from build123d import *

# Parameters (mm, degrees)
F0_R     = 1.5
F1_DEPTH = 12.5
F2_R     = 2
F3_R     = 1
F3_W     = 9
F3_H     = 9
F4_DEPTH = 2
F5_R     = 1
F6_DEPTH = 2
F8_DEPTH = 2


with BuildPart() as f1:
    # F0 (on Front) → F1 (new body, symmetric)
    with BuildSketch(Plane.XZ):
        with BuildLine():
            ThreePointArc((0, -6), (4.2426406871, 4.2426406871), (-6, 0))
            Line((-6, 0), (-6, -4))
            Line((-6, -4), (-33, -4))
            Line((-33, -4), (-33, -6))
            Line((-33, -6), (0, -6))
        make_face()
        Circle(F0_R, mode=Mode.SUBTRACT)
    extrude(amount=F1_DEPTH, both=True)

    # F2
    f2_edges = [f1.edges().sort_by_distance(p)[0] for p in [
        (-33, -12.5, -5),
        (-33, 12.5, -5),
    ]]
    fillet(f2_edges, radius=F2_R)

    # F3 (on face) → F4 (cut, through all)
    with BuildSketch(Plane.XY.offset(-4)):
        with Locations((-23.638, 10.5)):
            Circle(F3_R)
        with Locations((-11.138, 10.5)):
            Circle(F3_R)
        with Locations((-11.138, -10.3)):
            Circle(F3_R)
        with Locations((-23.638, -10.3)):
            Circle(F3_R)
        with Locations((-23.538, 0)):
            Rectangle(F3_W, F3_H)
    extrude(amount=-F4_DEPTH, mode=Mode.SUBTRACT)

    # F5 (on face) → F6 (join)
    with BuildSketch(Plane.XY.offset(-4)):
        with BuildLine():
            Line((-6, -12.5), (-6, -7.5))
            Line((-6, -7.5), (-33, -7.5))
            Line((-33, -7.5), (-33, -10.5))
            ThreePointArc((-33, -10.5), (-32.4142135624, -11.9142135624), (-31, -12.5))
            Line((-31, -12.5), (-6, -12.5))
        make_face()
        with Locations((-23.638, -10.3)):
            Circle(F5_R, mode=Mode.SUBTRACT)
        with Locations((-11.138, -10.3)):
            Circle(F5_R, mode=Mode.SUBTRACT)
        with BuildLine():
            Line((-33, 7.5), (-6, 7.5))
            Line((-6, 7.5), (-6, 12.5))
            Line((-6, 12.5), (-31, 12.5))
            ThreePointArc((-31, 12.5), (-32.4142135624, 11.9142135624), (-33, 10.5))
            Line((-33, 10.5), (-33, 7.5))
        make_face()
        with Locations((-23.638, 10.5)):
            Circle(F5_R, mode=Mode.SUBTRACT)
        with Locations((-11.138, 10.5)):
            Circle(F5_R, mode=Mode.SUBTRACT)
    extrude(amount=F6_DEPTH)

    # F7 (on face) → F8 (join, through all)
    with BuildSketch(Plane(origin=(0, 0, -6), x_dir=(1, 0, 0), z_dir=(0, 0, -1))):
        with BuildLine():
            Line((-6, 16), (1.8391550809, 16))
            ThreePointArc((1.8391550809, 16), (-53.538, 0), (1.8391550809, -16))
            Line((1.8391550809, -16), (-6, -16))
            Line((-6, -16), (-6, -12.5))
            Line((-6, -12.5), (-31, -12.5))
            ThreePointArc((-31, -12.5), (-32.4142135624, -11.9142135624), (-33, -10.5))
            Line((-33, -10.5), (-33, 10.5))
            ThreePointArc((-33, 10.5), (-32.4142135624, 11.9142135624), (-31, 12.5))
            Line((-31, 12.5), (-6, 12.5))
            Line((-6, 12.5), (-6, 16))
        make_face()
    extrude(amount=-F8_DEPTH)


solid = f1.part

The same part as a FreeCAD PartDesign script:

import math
import FreeCAD as App
import Part
import Sketcher
from FreeCAD import Vector
Q = App.Units.Quantity


def edges_at(feature, points):
    """Names of the edges that pass closest to the given points."""
    edges = feature.Shape.Edges
    near = lambda p: min(range(len(edges)), key=lambda i: edges[i].distToShape(Part.Vertex(*p))[0])
    return sorted({f"Edge{near(p) + 1}" for p in points})


def add_polygon(sketch, points):
    """Adds a closed chain of lines whose ends are joined by coincident constraints."""
    first, n = sketch.GeometryCount, len(points)
    for a, b in zip(points, points[1:] + points[:1]):
        sketch.addGeometry(Part.LineSegment(App.Vector(*a, 0), App.Vector(*b, 0)), False)
    for i in range(n):
        sketch.addConstraint(Sketcher.Constraint("Coincident", first + i, 2, first + (i + 1) % n, 1))

doc = App.newDocument("Part")
body = doc.addObject("PartDesign::Body", "Body")

# Sketch on XZ plane
sketch1 = doc.addObject("Sketcher::SketchObject", "Sketch")
body.addObject(sketch1)
sketch1.AttachmentSupport = (doc.XZ_Plane, [""])
sketch1.MapMode = "FlatFace"
sketch1.addGeometry(Part.ArcOfCircle(Part.Circle(Vector(0, 0, 0), Vector(0, 0, 1), 6), math.radians(-90), math.radians(180)), False)
sketch1.addGeometry(Part.LineSegment(Vector(-6, 0, 0), Vector(-6, -4, 0)), False)
sketch1.addGeometry(Part.LineSegment(Vector(-6, -4, 0), Vector(-33, -4, 0)), False)
sketch1.addGeometry(Part.LineSegment(Vector(-33, -4, 0), Vector(-33, -6, 0)), False)
sketch1.addGeometry(Part.LineSegment(Vector(-33, -6, 0), Vector(0, -6, 0)), False)
sketch1.addGeometry(Part.Circle(Vector(0, 0, 0), Vector(0, 0, 1), 1.5), False)
sketch1.addConstraint(Sketcher.Constraint("Tangent", 0, 2, 1, 1))
sketch1.addConstraint(Sketcher.Constraint("Coincident", 1, 2, 2, 1))
sketch1.addConstraint(Sketcher.Constraint("Coincident", 2, 2, 3, 1))
sketch1.addConstraint(Sketcher.Constraint("Coincident", 3, 2, 4, 1))
sketch1.addConstraint(Sketcher.Constraint("Tangent", 4, 2, 0, 1))
sketch1.addConstraint(Sketcher.Constraint("Vertical", 1))
sketch1.addConstraint(Sketcher.Constraint("Horizontal", 2))
sketch1.addConstraint(Sketcher.Constraint("Vertical", 3))
sketch1.addConstraint(Sketcher.Constraint("Horizontal", 4))
sketch1.addConstraint(Sketcher.Constraint("Coincident", 0, 3, -1, 1))
sketch1.addConstraint(Sketcher.Constraint("Coincident", 5, 3, -1, 1))
sketch1.addConstraint(Sketcher.Constraint("Diameter", 5, Q("3 mm")))
sketch1.addConstraint(Sketcher.Constraint("Radius", 0, Q("6 mm")))
sketch1.addConstraint(Sketcher.Constraint("DistanceX", 2, 2, 2, 1, Q("27 mm")))
sketch1.addConstraint(Sketcher.Constraint("DistanceY", 1, 2, 1, 1, Q("4 mm")))
pad1 = doc.addObject("PartDesign::Pad", "Pad")
body.addObject(pad1)
pad1.Profile = sketch1
pad1.Length = 25
pad1.Midplane = True
doc.recompute()

fillet = doc.addObject("PartDesign::Fillet", "Fillet")
body.addObject(fillet)
fillet.Base = (pad1, edges_at(pad1, [(-33, -12.5, -5), (-33, 12.5, -5)]))
fillet.Radius = 2

# Sketch on XY plane
sketch2 = doc.addObject("Sketcher::SketchObject", "Sketch001")
body.addObject(sketch2)
sketch2.AttachmentSupport = (doc.XY_Plane, [""])
sketch2.MapMode = "FlatFace"
sketch2.AttachmentOffset = App.Placement(Vector(0, 0, -4), App.Rotation())
sketch2.addGeometry(Part.Circle(Vector(-23.638, 10.5, 0), Vector(0, 0, 1), 1), False)  # 0
sketch2.addGeometry(Part.Circle(Vector(-11.138, 10.5, 0), Vector(0, 0, 1), 1), False)  # 1
sketch2.addGeometry(Part.Circle(Vector(-11.138, -10.3, 0), Vector(0, 0, 1), 1), False)  # 2
sketch2.addGeometry(Part.Circle(Vector(-23.638, -10.3, 0), Vector(0, 0, 1), 1), False)  # 3
add_polygon(sketch2, [(-28.038, 4.5), (-28.038, -4.5), (-19.038, -4.5), (-19.038, 4.5)])  # lines 4-7
sketch2.addConstraint(Sketcher.Constraint("Vertical", 4))
sketch2.addConstraint(Sketcher.Constraint("Horizontal", 5))
sketch2.addConstraint(Sketcher.Constraint("Vertical", 6))
sketch2.addConstraint(Sketcher.Constraint("Horizontal", 7))
sketch2.addConstraint(Sketcher.Constraint("Equal", 0, 1))
sketch2.addConstraint(Sketcher.Constraint("Equal", 1, 2))
sketch2.addConstraint(Sketcher.Constraint("Equal", 2, 3))
sketch2.addConstraint(Sketcher.Constraint("Horizontal", 0, 3, 1, 3))
sketch2.addConstraint(Sketcher.Constraint("Horizontal", 2, 3, 3, 3))
sketch2.addConstraint(Sketcher.Constraint("Vertical", 1, 3, 2, 3))
sketch2.addConstraint(Sketcher.Constraint("Vertical", 0, 3, 3, 3))
sketch2.addConstraint(Sketcher.Constraint("Equal", 7, 4))
sketch2.addConstraint(Sketcher.Constraint("Diameter", 0, Q("2 mm")))
sketch2.addConstraint(Sketcher.Constraint("DistanceX", 5, 1, 5, 2, Q("9 mm")))
sketch2.addConstraint(Sketcher.Constraint("DistanceY", 4, 2, 0, 3, Q("15 mm")))
sketch2.addConstraint(Sketcher.Constraint("DistanceY", -1, 1, 0, 3, Q("10.5 mm")))
sketch2.addConstraint(Sketcher.Constraint("DistanceY", 2, 3, -1, 1, Q("10.3 mm")))
sketch2.addConstraint(Sketcher.Constraint("DistanceX", 0, 3, 1, 3, Q("12.5 mm")))
sketch2.addConstraint(Sketcher.Constraint("DistanceX", 4, 2, 3, 3, Q("4.4 mm")))
sketch2.addConstraint(Sketcher.Constraint("DistanceX", 0, 3, -1, 1, Q("23.638 mm")))
pocket1 = doc.addObject("PartDesign::Pocket", "Pocket")
body.addObject(pocket1)
pocket1.Profile = sketch2
pocket1.Type = "ThroughAll"

# Sketch on XY plane
sketch3 = doc.addObject("Sketcher::SketchObject", "Sketch002")
body.addObject(sketch3)
sketch3.AttachmentSupport = (doc.XY_Plane, [""])
sketch3.MapMode = "FlatFace"
sketch3.AttachmentOffset = App.Placement(Vector(0, 0, -4), App.Rotation())
sketch3.addGeometry(Part.LineSegment(Vector(-6, -12.5, 0), Vector(-6, -7.5, 0)), False)
sketch3.addGeometry(Part.LineSegment(Vector(-6, -7.5, 0), Vector(-33, -7.5, 0)), False)
sketch3.addGeometry(Part.LineSegment(Vector(-33, -7.5, 0), Vector(-33, -10.5, 0)), False)
sketch3.addGeometry(Part.ArcOfCircle(Part.Circle(Vector(-31, -10.5, 0), Vector(0, 0, 1), 2), math.radians(180), math.radians(270)), False)
sketch3.addGeometry(Part.LineSegment(Vector(-31, -12.5, 0), Vector(-6, -12.5, 0)), False)
sketch3.addGeometry(Part.Circle(Vector(-23.638, -10.3, 0), Vector(0, 0, 1), 1), False)
sketch3.addGeometry(Part.Circle(Vector(-11.138, -10.3, 0), Vector(0, 0, 1), 1), False)
sketch3.addGeometry(Part.LineSegment(Vector(-33, 7.5, 0), Vector(-6, 7.5, 0)), False)
sketch3.addGeometry(Part.LineSegment(Vector(-6, 7.5, 0), Vector(-6, 12.5, 0)), False)
sketch3.addGeometry(Part.LineSegment(Vector(-6, 12.5, 0), Vector(-31, 12.5, 0)), False)
sketch3.addGeometry(Part.ArcOfCircle(Part.Circle(Vector(-31, 10.5, 0), Vector(0, 0, 1), 2), math.radians(90), math.radians(180)), False)
sketch3.addGeometry(Part.LineSegment(Vector(-33, 10.5, 0), Vector(-33, 7.5, 0)), False)
sketch3.addGeometry(Part.Circle(Vector(-23.638, 10.5, 0), Vector(0, 0, 1), 1), False)
sketch3.addGeometry(Part.Circle(Vector(-11.138, 10.5, 0), Vector(0, 0, 1), 1), False)
sketch3.addConstraint(Sketcher.Constraint("Coincident", 0, 2, 1, 1))
sketch3.addConstraint(Sketcher.Constraint("Coincident", 1, 2, 2, 1))
sketch3.addConstraint(Sketcher.Constraint("Tangent", 2, 2, 3, 1))
sketch3.addConstraint(Sketcher.Constraint("Tangent", 3, 2, 4, 1))
sketch3.addConstraint(Sketcher.Constraint("Coincident", 4, 2, 0, 1))
sketch3.addConstraint(Sketcher.Constraint("Coincident", 7, 2, 8, 1))
sketch3.addConstraint(Sketcher.Constraint("Coincident", 8, 2, 9, 1))
sketch3.addConstraint(Sketcher.Constraint("Tangent", 9, 2, 10, 1))
sketch3.addConstraint(Sketcher.Constraint("Tangent", 10, 2, 11, 1))
sketch3.addConstraint(Sketcher.Constraint("Coincident", 11, 2, 7, 1))
sketch3.addConstraint(Sketcher.Constraint("Vertical", 0))
sketch3.addConstraint(Sketcher.Constraint("Horizontal", 1))
sketch3.addConstraint(Sketcher.Constraint("Vertical", 2))
sketch3.addConstraint(Sketcher.Constraint("Horizontal", 4))
sketch3.addConstraint(Sketcher.Constraint("Horizontal", 7))
sketch3.addConstraint(Sketcher.Constraint("Vertical", 8))
sketch3.addConstraint(Sketcher.Constraint("Horizontal", 9))
sketch3.addConstraint(Sketcher.Constraint("Vertical", 11))
sketch3.addConstraint(Sketcher.Constraint("Equal", 5, 6))
sketch3.addConstraint(Sketcher.Constraint("Equal", 3, 10))
sketch3.addConstraint(Sketcher.Constraint("Equal", 6, 12))
sketch3.addConstraint(Sketcher.Constraint("Equal", 12, 13))
sketch3.addConstraint(Sketcher.Constraint("Symmetric", 3, 3, 10, 3, -1))
sketch3.addConstraint(Sketcher.Constraint("Symmetric", 0, 2, 7, 2, -1))
sketch3.addConstraint(Sketcher.Constraint("Horizontal", 5, 3, 6, 3))
sketch3.addConstraint(Sketcher.Constraint("Horizontal", 10, 3, 12, 3))
sketch3.addConstraint(Sketcher.Constraint("Horizontal", 12, 3, 13, 3))
sketch3.addConstraint(Sketcher.Constraint("Vertical", 5, 3, 12, 3))
sketch3.addConstraint(Sketcher.Constraint("Vertical", 6, 3, 13, 3))
sketch3.addConstraint(Sketcher.Constraint("Diameter", 5, Q("2 mm")))
sketch3.addConstraint(Sketcher.Constraint("Radius", 3, Q("2 mm")))
sketch3.addConstraint(Sketcher.Constraint("DistanceX", 1, 2, 1, 1, Q("27 mm")))
sketch3.addConstraint(Sketcher.Constraint("DistanceY", 0, 1, 0, 2, Q("5 mm")))
sketch3.addConstraint(Sketcher.Constraint("DistanceX", 3, 3, -1, 1, Q("31 mm")))
sketch3.addConstraint(Sketcher.Constraint("DistanceY", 3, 3, 10, 3, Q("21 mm")))
sketch3.addConstraint(Sketcher.Constraint("DistanceY", 5, 3, -1, 1, Q("10.3 mm")))
sketch3.addConstraint(Sketcher.Constraint("DistanceX", 5, 3, 6, 3, Q("12.5 mm")))
sketch3.addConstraint(Sketcher.Constraint("DistanceX", 5, 3, -1, 1, Q("23.638 mm")))
pad2 = doc.addObject("PartDesign::Pad", "Pad001")
body.addObject(pad2)
pad2.Profile = sketch3
pad2.Length = 2

# Sketch on XY plane
sketch4 = doc.addObject("Sketcher::SketchObject", "Sketch003")
body.addObject(sketch4)
sketch4.AttachmentSupport = (doc.XY_Plane, [""])
sketch4.MapMode = "FlatFace"
sketch4.AttachmentOffset = App.Placement(Vector(0, 0, -6), App.Rotation())
sketch4.addGeometry(Part.LineSegment(Vector(-6, -16, 0), Vector(1.839155, -16, 0)), False)
sketch4.addGeometry(Part.ArcOfCircle(Part.Circle(Vector(-23.538, 0, 0), Vector(0, 0, 1), 30), math.radians(32.230953), math.radians(327.769047)), False)
sketch4.addGeometry(Part.LineSegment(Vector(1.839155, 16, 0), Vector(-6, 16, 0)), False)
sketch4.addGeometry(Part.LineSegment(Vector(-6, 16, 0), Vector(-6, 12.5, 0)), False)
sketch4.addGeometry(Part.LineSegment(Vector(-6, 12.5, 0), Vector(-31, 12.5, 0)), False)
sketch4.addGeometry(Part.ArcOfCircle(Part.Circle(Vector(-31, 10.5, 0), Vector(0, 0, 1), 2), math.radians(90), math.radians(180)), False)
sketch4.addGeometry(Part.LineSegment(Vector(-33, 10.5, 0), Vector(-33, -10.5, 0)), False)
sketch4.addGeometry(Part.ArcOfCircle(Part.Circle(Vector(-31, -10.5, 0), Vector(0, 0, 1), 2), math.radians(180), math.radians(270)), False)
sketch4.addGeometry(Part.LineSegment(Vector(-31, -12.5, 0), Vector(-6, -12.5, 0)), False)
sketch4.addGeometry(Part.LineSegment(Vector(-6, -12.5, 0), Vector(-6, -16, 0)), False)
sketch4.addConstraint(Sketcher.Constraint("Coincident", 0, 2, 1, 2))
sketch4.addConstraint(Sketcher.Constraint("Coincident", 1, 1, 2, 1))
sketch4.addConstraint(Sketcher.Constraint("Coincident", 2, 2, 3, 1))
sketch4.addConstraint(Sketcher.Constraint("Coincident", 3, 2, 4, 1))
sketch4.addConstraint(Sketcher.Constraint("Tangent", 4, 2, 5, 1))
sketch4.addConstraint(Sketcher.Constraint("Tangent", 5, 2, 6, 1))
sketch4.addConstraint(Sketcher.Constraint("Tangent", 6, 2, 7, 1))
sketch4.addConstraint(Sketcher.Constraint("Tangent", 7, 2, 8, 1))
sketch4.addConstraint(Sketcher.Constraint("Coincident", 8, 2, 9, 1))
sketch4.addConstraint(Sketcher.Constraint("Coincident", 9, 2, 0, 1))
sketch4.addConstraint(Sketcher.Constraint("Horizontal", 0))
sketch4.addConstraint(Sketcher.Constraint("Horizontal", 2))
sketch4.addConstraint(Sketcher.Constraint("Vertical", 3))
sketch4.addConstraint(Sketcher.Constraint("Horizontal", 4))
sketch4.addConstraint(Sketcher.Constraint("Vertical", 6))
sketch4.addConstraint(Sketcher.Constraint("Horizontal", 8))
sketch4.addConstraint(Sketcher.Constraint("Vertical", 9))
sketch4.addConstraint(Sketcher.Constraint("Equal", 5, 7))
sketch4.addConstraint(Sketcher.Constraint("Symmetric", 0, 2, 1, 1, -1))
sketch4.addConstraint(Sketcher.Constraint("Symmetric", 3, 2, 8, 2, -1))
sketch4.addConstraint(Sketcher.Constraint("Radius", 1, Q("30 mm")))
sketch4.addConstraint(Sketcher.Constraint("Radius", 5, Q("2 mm")))
sketch4.addConstraint(Sketcher.Constraint("DistanceX", 4, 2, 4, 1, Q("25 mm")))
sketch4.addConstraint(Sketcher.Constraint("DistanceY", 6, 2, 6, 1, Q("21 mm")))
sketch4.addConstraint(Sketcher.Constraint("DistanceY", 3, 2, 3, 1, Q("3.5 mm")))
sketch4.addConstraint(Sketcher.Constraint("DistanceX", 5, 3, -1, 1, Q("31 mm")))
sketch4.addConstraint(Sketcher.Constraint("DistanceX", 1, 3, -1, 1, Q("23.538 mm")))
pad3 = doc.addObject("PartDesign::Pad", "Pad002")
body.addObject(pad3)
pad3.Profile = sketch4
pad3.Type = "UpToLast"

doc.recompute()
